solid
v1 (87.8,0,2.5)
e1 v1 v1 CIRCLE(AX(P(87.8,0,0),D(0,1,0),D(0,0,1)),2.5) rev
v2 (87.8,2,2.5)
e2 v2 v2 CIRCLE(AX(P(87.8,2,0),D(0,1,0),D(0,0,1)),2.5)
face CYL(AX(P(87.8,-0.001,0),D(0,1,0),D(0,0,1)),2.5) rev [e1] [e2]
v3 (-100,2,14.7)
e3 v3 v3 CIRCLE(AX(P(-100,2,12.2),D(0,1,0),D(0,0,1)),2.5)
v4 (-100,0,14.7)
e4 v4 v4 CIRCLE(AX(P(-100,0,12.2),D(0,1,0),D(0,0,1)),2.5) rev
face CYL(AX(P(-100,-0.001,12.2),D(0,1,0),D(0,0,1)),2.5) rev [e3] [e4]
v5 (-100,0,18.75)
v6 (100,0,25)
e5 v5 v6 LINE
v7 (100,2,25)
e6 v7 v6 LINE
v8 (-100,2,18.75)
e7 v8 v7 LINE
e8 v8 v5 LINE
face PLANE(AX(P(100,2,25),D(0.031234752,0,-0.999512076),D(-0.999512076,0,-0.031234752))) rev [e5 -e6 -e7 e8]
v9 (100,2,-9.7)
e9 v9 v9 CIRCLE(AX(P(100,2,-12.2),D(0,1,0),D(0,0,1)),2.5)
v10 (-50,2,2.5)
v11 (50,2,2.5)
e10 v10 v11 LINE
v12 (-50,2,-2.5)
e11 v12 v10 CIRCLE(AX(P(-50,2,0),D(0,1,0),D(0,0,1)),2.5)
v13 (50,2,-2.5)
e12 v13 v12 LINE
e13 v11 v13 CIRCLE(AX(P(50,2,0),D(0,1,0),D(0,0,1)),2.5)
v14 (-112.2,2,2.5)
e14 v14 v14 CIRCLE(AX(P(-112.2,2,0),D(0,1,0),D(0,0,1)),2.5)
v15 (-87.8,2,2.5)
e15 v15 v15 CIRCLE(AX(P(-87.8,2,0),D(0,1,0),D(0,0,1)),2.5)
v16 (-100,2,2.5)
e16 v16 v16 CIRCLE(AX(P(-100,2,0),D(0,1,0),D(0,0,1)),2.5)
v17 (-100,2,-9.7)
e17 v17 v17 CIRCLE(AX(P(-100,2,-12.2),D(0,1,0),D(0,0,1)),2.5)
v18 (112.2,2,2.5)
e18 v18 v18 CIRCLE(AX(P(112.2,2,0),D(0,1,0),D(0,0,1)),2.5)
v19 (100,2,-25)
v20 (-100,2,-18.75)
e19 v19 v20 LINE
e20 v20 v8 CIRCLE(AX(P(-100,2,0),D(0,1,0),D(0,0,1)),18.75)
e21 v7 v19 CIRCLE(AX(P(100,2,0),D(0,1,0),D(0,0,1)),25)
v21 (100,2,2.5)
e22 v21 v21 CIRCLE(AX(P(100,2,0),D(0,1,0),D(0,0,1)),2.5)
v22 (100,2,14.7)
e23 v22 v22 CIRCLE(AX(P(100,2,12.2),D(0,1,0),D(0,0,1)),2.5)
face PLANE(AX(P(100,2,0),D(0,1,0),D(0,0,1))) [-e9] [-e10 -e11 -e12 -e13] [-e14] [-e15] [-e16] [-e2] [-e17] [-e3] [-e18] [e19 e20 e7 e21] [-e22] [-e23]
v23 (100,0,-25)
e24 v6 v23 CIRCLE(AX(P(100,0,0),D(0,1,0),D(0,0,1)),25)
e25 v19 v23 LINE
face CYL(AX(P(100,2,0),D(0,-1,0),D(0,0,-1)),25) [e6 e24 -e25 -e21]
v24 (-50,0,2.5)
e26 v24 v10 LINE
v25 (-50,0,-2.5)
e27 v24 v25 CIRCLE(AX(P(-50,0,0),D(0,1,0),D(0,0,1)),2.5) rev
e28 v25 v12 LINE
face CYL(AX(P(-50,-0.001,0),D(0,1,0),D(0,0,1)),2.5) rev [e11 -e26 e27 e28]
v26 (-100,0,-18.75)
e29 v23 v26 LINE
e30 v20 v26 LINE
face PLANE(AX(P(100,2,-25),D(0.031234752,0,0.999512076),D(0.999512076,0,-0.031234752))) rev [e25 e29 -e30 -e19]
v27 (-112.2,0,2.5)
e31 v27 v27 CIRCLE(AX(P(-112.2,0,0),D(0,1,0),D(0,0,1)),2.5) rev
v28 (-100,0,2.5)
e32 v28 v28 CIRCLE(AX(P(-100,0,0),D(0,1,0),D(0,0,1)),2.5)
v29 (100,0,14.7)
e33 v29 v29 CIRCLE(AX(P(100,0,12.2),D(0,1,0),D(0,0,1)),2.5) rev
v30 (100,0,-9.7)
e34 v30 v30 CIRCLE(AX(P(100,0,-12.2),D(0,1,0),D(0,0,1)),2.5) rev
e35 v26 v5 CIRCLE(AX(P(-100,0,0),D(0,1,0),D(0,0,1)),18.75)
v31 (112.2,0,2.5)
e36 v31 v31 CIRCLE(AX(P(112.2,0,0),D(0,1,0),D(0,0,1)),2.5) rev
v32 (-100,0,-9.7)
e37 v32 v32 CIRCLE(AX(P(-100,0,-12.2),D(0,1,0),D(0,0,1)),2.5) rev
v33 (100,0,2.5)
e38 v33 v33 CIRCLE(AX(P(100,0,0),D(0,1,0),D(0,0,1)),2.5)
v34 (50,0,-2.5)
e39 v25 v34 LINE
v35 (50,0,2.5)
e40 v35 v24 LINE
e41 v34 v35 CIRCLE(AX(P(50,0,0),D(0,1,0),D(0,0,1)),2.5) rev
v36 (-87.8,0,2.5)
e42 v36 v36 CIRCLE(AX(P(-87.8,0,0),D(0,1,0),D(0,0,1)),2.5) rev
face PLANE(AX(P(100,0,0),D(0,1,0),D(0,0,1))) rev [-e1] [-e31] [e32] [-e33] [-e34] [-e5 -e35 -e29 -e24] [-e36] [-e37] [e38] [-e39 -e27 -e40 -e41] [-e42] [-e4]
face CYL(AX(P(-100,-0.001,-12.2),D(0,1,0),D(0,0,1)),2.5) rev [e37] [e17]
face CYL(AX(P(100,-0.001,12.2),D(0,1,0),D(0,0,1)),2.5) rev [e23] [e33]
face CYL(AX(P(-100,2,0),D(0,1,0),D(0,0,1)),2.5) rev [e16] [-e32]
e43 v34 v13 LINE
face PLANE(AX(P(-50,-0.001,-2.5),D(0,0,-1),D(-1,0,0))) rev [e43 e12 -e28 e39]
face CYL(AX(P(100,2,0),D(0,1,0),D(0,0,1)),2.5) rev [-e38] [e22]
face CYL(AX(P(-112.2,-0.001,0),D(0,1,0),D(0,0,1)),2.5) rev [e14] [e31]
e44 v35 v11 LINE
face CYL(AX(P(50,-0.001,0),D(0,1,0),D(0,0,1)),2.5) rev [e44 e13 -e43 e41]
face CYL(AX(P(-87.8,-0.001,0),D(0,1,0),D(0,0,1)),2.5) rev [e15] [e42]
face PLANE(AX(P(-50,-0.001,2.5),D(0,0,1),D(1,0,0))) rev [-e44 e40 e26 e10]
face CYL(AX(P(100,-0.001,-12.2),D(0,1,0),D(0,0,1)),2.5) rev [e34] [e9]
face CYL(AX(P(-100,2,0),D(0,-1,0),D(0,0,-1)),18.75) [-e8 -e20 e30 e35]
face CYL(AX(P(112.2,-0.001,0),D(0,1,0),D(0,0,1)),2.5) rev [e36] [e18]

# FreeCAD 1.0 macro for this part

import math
import FreeCAD as App
import Part
import Sketcher
from FreeCAD import Vector

doc = App.newDocument("Part")
body = doc.addObject("PartDesign::Body", "Body")

# Sketch on XZ plane
sketch1 = body.newObject("Sketcher::SketchObject", "Sketch")
sketch1.AttachmentSupport = (doc.getObject("XZ_Plane"), [""])
sketch1.MapMode = "FlatFace"
sketch1.addGeometry([
    Part.LineSegment(Vector(100, -25, 0), Vector(-100, -19, 0)),
    Part.ArcOfCircle(Part.Circle(Vector(-100, 0, 0), Vector(0, 0, 1), 19), math.radians(90), math.radians(270)),
    Part.LineSegment(Vector(-100, 19, 0), Vector(100, 25, 0)),
    Part.ArcOfCircle(Part.Circle(Vector(100, 0, 0), Vector(0, 0, 1), 25), math.radians(-90), math.radians(90)),
], False)
sketch1.addConstraint([
    Sketcher.Constraint("Coincident", 0, 2, 1, 2),
    Sketcher.Constraint("Coincident", 1, 1, 2, 1),
    Sketcher.Constraint("Coincident", 2, 2, 3, 2),
    Sketcher.Constraint("Coincident", 3, 1, 0, 1),
    Sketcher.Constraint("Symmetric", 1, 3, 3, 3, -1, 1),
    Sketcher.Constraint("Symmetric", 0, 2, 1, 1, -1),
    Sketcher.Constraint("Vertical", 1, 3, 0, 2),
    Sketcher.Constraint("Vertical", 3, 3, 2, 2),
    Sketcher.Constraint("Vertical", 2, 2, 3, 1),
    Sketcher.Constraint("Radius", 3, 25.0),
    Sketcher.Constraint("Radius", 1, 18.75),
    Sketcher.Constraint("DistanceX", 1, 3, -1, 1, 100.0),
])
pad1 = body.newObject("PartDesign::Pad", "Pad")
pad1.Profile = sketch1
pad1.Length = 2
pad1.Reversed = True

# Sketch on XZ plane
sketch2 = body.newObject("Sketcher::SketchObject", "Sketch001")
sketch2.AttachmentSupport = (doc.getObject("XZ_Plane"), [""])
sketch2.MapMode = "FlatFace"
sketch2.AttachmentOffset = App.Placement(Vector(0, 0, -2), App.Rotation())
sketch2.addGeometry([
    Part.Circle(Vector(100, 0, 0), Vector(0, 0, 1), 2.5),
    Part.Circle(Vector(-100, 0, 0), Vector(0, 0, 1), 2.5),
], False)
sketch2.addConstraint([
    Sketcher.Constraint("Equal", 0, 1),
    Sketcher.Constraint("Symmetric", 0, 3, 1, 3, -1, 1),
    Sketcher.Constraint("PointOnObject", 0, 3, -1),
    Sketcher.Constraint("Diameter", 0, 5.0),
    Sketcher.Constraint("DistanceX", -1, 1, 0, 3, 100.0),
])
doc.recompute()
hole = body.newObject("PartDesign::Hole", "Hole")
hole.Profile = sketch2
hole.ThreadType = "None"
hole.Diameter = 5
hole.DepthType = "Dimension"
hole.Depth = 2
hole.DrillPoint = "Flat"
hole.Reversed = True

# Sketch on XZ plane
sketch3 = body.newObject("Sketcher::SketchObject", "Sketch002")
sketch3.AttachmentSupport = (doc.getObject("XZ_Plane"), [""])
sketch3.MapMode = "FlatFace"
sketch3.AttachmentOffset = App.Placement(Vector(0, 0, -2), App.Rotation())
sketch3.addGeometry(Part.Circle(Vector(100, -12.2, 0), Vector(0, 0, 1), 2.5), False)
sketch3.addConstraint([
    Sketcher.Constraint("Diameter", 0, 5.0),
    Sketcher.Constraint("DistanceX", -1, 1, 0, 3, 100.0),
    Sketcher.Constraint("DistanceY", 0, 3, -1, 1, 12.2),
])
pocket1 = body.newObject("PartDesign::Pocket", "Pocket")
pocket1.Profile = sketch3
pocket1.Type = "UpToFirst"
pocket1.Reversed = True

# Sketch on XZ plane
sketch4 = body.newObject("Sketcher::SketchObject", "Sketch003")
sketch4.AttachmentSupport = (doc.getObject("XZ_Plane"), [""])
sketch4.MapMode = "FlatFace"
sketch4.AttachmentOffset = App.Placement(Vector(0, 0, -2), App.Rotation())
sketch4.addGeometry(Part.Circle(Vector(100, 12.2, 0), Vector(0, 0, 1), 2.5), False)
sketch4.addConstraint([
    Sketcher.Constraint("Diameter", 0, 5.0),
    Sketcher.Constraint("DistanceX", -1, 1, 0, 3, 100.0),
    Sketcher.Constraint("DistanceY", -1, 1, 0, 3, 12.2),
])
pocket2 = body.newObject("PartDesign::Pocket", "Pocket001")
pocket2.Profile = sketch4
pocket2.Type = "UpToFirst"
pocket2.Reversed = True

# Sketch on XZ plane
sketch5 = body.newObject("Sketcher::SketchObject", "Sketch004")
sketch5.AttachmentSupport = (doc.getObject("XZ_Plane"), [""])
sketch5.MapMode = "FlatFace"
sketch5.AttachmentOffset = App.Placement(Vector(0, 0, -2), App.Rotation())
sketch5.addGeometry(Part.Circle(Vector(112.2, 0, 0), Vector(0, 0, 1), 2.5), False)
sketch5.addConstraint([
    Sketcher.Constraint("PointOnObject", 0, 3, -1),
    Sketcher.Constraint("Diameter", 0, 5.0),
    Sketcher.Constraint("DistanceX", -1, 1, 0, 3, 112.2),
])
pocket3 = body.newObject("PartDesign::Pocket", "Pocket002")
pocket3.Profile = sketch5
pocket3.Type = "UpToFirst"
pocket3.Reversed = True

# Sketch on XZ plane
sketch6 = body.newObject("Sketcher::SketchObject", "Sketch005")
sketch6.AttachmentSupport = (doc.getObject("XZ_Plane"), [""])
sketch6.MapMode = "FlatFace"
sketch6.AttachmentOffset = App.Placement(Vector(0, 0, -2), App.Rotation())
sketch6.addGeometry(Part.Circle(Vector(87.8, 0, 0), Vector(0, 0, 1), 2.5), False)
sketch6.addConstraint([
    Sketcher.Constraint("PointOnObject", 0, 3, -1),
    Sketcher.Constraint("Diameter", 0, 5.0),
    Sketcher.Constraint("DistanceX", -1, 1, 0, 3, 87.8),
])
pocket4 = body.newObject("PartDesign::Pocket", "Pocket003")
pocket4.Profile = sketch6
pocket4.Type = "UpToFirst"
pocket4.Reversed = True

# Sketch on XZ plane
sketch7 = body.newObject("Sketcher::SketchObject", "Sketch006")
sketch7.AttachmentSupport = (doc.getObject("XZ_Plane"), [""])
sketch7.MapMode = "FlatFace"
sketch7.AttachmentOffset = App.Placement(Vector(0, 0, -2), App.Rotation())
sketch7.addGeometry(Part.Circle(Vector(-100, -12.2, 0), Vector(0, 0, 1), 2.5), False)
sketch7.addConstraint([
    Sketcher.Constraint("Diameter", 0, 5.0),
    Sketcher.Constraint("DistanceX", 0, 3, -1, 1, 100.0),
    Sketcher.Constraint("DistanceY", 0, 3, -1, 1, 12.2),
])
pocket5 = body.newObject("PartDesign::Pocket", "Pocket004")
pocket5.Profile = sketch7
pocket5.Type = "UpToFirst"
pocket5.Reversed = True

# Sketch on XZ plane
sketch8 = body.newObject("Sketcher::SketchObject", "Sketch007")
sketch8.AttachmentSupport = (doc.getObject("XZ_Plane"), [""])
sketch8.MapMode = "FlatFace"
sketch8.AttachmentOffset = App.Placement(Vector(0, 0, -2), App.Rotation())
sketch8.addGeometry(Part.Circle(Vector(-87.8, 0, 0), Vector(0, 0, 1), 2.5), False)
sketch8.addConstraint([
    Sketcher.Constraint("PointOnObject", 0, 3, -1),
    Sketcher.Constraint("Diameter", 0, 5.0),
    Sketcher.Constraint("DistanceX", 0, 3, -1, 1, 87.8),
])
pocket6 = body.newObject("PartDesign::Pocket", "Pocket005")
pocket6.Profile = sketch8
pocket6.Type = "UpToFirst"
pocket6.Reversed = True

# Sketch on XZ plane
sketch9 = body.newObject("Sketcher::SketchObject", "Sketch008")
sketch9.AttachmentSupport = (doc.getObject("XZ_Plane"), [""])
sketch9.MapMode = "FlatFace"
sketch9.AttachmentOffset = App.Placement(Vector(0, 0, -2), App.Rotation())
sketch9.addGeometry(Part.Circle(Vector(-112.2, 0, 0), Vector(0, 0, 1), 2.5), False)
sketch9.addConstraint([
    Sketcher.Constraint("PointOnObject", 0, 3, -1),
    Sketcher.Constraint("Diameter", 0, 5.0),
    Sketcher.Constraint("DistanceX", 0, 3, -1, 1, 112.2),
])
pocket7 = body.newObject("PartDesign::Pocket", "Pocket006")
pocket7.Profile = sketch9
pocket7.Type = "UpToFirst"
pocket7.Reversed = True

# Sketch on XZ plane
sketch10 = body.newObject("Sketcher::SketchObject", "Sketch009")
sketch10.AttachmentSupport = (doc.getObject("XZ_Plane"), [""])
sketch10.MapMode = "FlatFace"
sketch10.AttachmentOffset = App.Placement(Vector(0, 0, -2), App.Rotation())
sketch10.addGeometry(Part.Circle(Vector(-100, 12.2, 0), Vector(0, 0, 1), 2.5), False)
sketch10.addConstraint([
    Sketcher.Constraint("Diameter", 0, 5.0),
    Sketcher.Constraint("DistanceX", 0, 3, -1, 1, 100.0),
    Sketcher.Constraint("DistanceY", -1, 1, 0, 3, 12.2),
])
pocket8 = body.newObject("PartDesign::Pocket", "Pocket007")
pocket8.Profile = sketch10
pocket8.Type = "UpToFirst"
pocket8.Reversed = True

# Sketch on XZ plane
sketch11 = body.newObject("Sketcher::SketchObject", "Sketch010")
sketch11.AttachmentSupport = (doc.getObject("XZ_Plane"), [""])
sketch11.MapMode = "FlatFace"
sketch11.AttachmentOffset = App.Placement(Vector(0, 0, -2), App.Rotation())
sketch11.addGeometry([
    Part.LineSegment(Vector(-50, 2.5, 0), Vector(50, 2.5, 0)),
    Part.ArcOfCircle(Part.Circle(Vector(50, 0, 0), Vector(0, 0, 1), 2.5), math.radians(-90), math.radians(90)),
    Part.LineSegment(Vector(50, -2.5, 0), Vector(-50, -2.5, 0)),
    Part.ArcOfCircle(Part.Circle(Vector(-50, 0, 0), Vector(0, 0, 1), 2.5), math.radians(90), math.radians(270)),
], False)
sketch11.addConstraint([
    Sketcher.Constraint("Tangent", 0, 2, 1, 2),
    Sketcher.Constraint("Tangent", 1, 1, 2, 1),
    Sketcher.Constraint("Tangent", 2, 2, 3, 2),
    Sketcher.Constraint("Tangent", 3, 1, 0, 1),
    Sketcher.Constraint("Horizontal", 0),
    Sketcher.Constraint("Horizontal", 2),
    Sketcher.Constraint("Symmetric", 1, 3, 3, 3, -1, 1),
    Sketcher.Constraint("Radius", 1, 2.5),
    Sketcher.Constraint("DistanceX", 0, 1, 0, 2, 100.0),
])
pocket9 = body.newObject("PartDesign::Pocket", "Pocket008")
pocket9.Profile = sketch11
pocket9.Type = "UpToFirst"
pocket9.Reversed = True

doc.recompute()
